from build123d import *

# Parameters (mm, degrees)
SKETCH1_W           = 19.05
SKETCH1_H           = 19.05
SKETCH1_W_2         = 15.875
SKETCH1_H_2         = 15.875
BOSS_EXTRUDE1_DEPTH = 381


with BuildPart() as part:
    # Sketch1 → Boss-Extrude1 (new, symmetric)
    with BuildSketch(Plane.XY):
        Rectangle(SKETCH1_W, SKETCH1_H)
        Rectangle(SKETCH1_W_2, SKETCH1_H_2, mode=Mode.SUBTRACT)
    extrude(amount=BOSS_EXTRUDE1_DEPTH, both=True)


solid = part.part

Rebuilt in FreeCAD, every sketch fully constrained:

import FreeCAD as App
import Part
import Sketcher
Q = App.Units.Quantity


def add_polygon(sketch, points):
    """Adds a closed chain of lines whose ends are joined by coincident constraints."""
    first, n = sketch.GeometryCount, len(points)
    for a, b in zip(points, points[1:] + points[:1]):
        sketch.addGeometry(Part.LineSegment(App.Vector(*a, 0), App.Vector(*b, 0)), False)
    for i in range(n):
        sketch.addConstraint(Sketcher.Constraint("Coincident", first + i, 2, first + (i + 1) % n, 1))

doc = App.newDocument("Part")
body = doc.addObject("PartDesign::Body", "Body")

# Sketch on XY plane
sketch1 = body.newObject("Sketcher::SketchObject", "Sketch")
sketch1.AttachmentSupport = (doc.getObject("XY_Plane"), [""])
sketch1.MapMode = "FlatFace"
add_polygon(sketch1, [(-10, 10), (-10, -10), (10, -10), (10, 10)])  # lines 0-3
add_polygon(sketch1, [(8, -8), (-8, -8), (-8, 8), (8, 8)])  # lines 4-7
sketch1.addConstraint(Sketcher.Constraint("Vertical", 0))
sketch1.addConstraint(Sketcher.Constraint("Horizontal", 1))
sketch1.addConstraint(Sketcher.Constraint("Vertical", 2))
sketch1.addConstraint(Sketcher.Constraint("Horizontal", 3))
sketch1.addConstraint(Sketcher.Constraint("Horizontal", 4))
sketch1.addConstraint(Sketcher.Constraint("Vertical", 5))
sketch1.addConstraint(Sketcher.Constraint("Horizontal", 6))
sketch1.addConstraint(Sketcher.Constraint("Vertical", 7))
sketch1.addConstraint(Sketcher.Constraint("Symmetric", 0, 2, 2, 2, -1, 1))
sketch1.addConstraint(Sketcher.Constraint("Symmetric", 4, 2, 6, 2, -1, 1))
sketch1.addConstraint(Sketcher.Constraint("Equal", 3, 0))
sketch1.addConstraint(Sketcher.Constraint("Equal", 6, 5))
sketch1.addConstraint(Sketcher.Constraint("DistanceX", 1, 1, 1, 2, Q("0.75 in")))
sketch1.addConstraint(Sketcher.Constraint("DistanceX", 4, 2, 4, 1, Q("0.625 in")))
pad1 = body.newObject("PartDesign::Pad", "Pad")
pad1.Profile = sketch1
pad1.Length = Q("30 in")
pad1.Midplane = True

doc.recompute()
